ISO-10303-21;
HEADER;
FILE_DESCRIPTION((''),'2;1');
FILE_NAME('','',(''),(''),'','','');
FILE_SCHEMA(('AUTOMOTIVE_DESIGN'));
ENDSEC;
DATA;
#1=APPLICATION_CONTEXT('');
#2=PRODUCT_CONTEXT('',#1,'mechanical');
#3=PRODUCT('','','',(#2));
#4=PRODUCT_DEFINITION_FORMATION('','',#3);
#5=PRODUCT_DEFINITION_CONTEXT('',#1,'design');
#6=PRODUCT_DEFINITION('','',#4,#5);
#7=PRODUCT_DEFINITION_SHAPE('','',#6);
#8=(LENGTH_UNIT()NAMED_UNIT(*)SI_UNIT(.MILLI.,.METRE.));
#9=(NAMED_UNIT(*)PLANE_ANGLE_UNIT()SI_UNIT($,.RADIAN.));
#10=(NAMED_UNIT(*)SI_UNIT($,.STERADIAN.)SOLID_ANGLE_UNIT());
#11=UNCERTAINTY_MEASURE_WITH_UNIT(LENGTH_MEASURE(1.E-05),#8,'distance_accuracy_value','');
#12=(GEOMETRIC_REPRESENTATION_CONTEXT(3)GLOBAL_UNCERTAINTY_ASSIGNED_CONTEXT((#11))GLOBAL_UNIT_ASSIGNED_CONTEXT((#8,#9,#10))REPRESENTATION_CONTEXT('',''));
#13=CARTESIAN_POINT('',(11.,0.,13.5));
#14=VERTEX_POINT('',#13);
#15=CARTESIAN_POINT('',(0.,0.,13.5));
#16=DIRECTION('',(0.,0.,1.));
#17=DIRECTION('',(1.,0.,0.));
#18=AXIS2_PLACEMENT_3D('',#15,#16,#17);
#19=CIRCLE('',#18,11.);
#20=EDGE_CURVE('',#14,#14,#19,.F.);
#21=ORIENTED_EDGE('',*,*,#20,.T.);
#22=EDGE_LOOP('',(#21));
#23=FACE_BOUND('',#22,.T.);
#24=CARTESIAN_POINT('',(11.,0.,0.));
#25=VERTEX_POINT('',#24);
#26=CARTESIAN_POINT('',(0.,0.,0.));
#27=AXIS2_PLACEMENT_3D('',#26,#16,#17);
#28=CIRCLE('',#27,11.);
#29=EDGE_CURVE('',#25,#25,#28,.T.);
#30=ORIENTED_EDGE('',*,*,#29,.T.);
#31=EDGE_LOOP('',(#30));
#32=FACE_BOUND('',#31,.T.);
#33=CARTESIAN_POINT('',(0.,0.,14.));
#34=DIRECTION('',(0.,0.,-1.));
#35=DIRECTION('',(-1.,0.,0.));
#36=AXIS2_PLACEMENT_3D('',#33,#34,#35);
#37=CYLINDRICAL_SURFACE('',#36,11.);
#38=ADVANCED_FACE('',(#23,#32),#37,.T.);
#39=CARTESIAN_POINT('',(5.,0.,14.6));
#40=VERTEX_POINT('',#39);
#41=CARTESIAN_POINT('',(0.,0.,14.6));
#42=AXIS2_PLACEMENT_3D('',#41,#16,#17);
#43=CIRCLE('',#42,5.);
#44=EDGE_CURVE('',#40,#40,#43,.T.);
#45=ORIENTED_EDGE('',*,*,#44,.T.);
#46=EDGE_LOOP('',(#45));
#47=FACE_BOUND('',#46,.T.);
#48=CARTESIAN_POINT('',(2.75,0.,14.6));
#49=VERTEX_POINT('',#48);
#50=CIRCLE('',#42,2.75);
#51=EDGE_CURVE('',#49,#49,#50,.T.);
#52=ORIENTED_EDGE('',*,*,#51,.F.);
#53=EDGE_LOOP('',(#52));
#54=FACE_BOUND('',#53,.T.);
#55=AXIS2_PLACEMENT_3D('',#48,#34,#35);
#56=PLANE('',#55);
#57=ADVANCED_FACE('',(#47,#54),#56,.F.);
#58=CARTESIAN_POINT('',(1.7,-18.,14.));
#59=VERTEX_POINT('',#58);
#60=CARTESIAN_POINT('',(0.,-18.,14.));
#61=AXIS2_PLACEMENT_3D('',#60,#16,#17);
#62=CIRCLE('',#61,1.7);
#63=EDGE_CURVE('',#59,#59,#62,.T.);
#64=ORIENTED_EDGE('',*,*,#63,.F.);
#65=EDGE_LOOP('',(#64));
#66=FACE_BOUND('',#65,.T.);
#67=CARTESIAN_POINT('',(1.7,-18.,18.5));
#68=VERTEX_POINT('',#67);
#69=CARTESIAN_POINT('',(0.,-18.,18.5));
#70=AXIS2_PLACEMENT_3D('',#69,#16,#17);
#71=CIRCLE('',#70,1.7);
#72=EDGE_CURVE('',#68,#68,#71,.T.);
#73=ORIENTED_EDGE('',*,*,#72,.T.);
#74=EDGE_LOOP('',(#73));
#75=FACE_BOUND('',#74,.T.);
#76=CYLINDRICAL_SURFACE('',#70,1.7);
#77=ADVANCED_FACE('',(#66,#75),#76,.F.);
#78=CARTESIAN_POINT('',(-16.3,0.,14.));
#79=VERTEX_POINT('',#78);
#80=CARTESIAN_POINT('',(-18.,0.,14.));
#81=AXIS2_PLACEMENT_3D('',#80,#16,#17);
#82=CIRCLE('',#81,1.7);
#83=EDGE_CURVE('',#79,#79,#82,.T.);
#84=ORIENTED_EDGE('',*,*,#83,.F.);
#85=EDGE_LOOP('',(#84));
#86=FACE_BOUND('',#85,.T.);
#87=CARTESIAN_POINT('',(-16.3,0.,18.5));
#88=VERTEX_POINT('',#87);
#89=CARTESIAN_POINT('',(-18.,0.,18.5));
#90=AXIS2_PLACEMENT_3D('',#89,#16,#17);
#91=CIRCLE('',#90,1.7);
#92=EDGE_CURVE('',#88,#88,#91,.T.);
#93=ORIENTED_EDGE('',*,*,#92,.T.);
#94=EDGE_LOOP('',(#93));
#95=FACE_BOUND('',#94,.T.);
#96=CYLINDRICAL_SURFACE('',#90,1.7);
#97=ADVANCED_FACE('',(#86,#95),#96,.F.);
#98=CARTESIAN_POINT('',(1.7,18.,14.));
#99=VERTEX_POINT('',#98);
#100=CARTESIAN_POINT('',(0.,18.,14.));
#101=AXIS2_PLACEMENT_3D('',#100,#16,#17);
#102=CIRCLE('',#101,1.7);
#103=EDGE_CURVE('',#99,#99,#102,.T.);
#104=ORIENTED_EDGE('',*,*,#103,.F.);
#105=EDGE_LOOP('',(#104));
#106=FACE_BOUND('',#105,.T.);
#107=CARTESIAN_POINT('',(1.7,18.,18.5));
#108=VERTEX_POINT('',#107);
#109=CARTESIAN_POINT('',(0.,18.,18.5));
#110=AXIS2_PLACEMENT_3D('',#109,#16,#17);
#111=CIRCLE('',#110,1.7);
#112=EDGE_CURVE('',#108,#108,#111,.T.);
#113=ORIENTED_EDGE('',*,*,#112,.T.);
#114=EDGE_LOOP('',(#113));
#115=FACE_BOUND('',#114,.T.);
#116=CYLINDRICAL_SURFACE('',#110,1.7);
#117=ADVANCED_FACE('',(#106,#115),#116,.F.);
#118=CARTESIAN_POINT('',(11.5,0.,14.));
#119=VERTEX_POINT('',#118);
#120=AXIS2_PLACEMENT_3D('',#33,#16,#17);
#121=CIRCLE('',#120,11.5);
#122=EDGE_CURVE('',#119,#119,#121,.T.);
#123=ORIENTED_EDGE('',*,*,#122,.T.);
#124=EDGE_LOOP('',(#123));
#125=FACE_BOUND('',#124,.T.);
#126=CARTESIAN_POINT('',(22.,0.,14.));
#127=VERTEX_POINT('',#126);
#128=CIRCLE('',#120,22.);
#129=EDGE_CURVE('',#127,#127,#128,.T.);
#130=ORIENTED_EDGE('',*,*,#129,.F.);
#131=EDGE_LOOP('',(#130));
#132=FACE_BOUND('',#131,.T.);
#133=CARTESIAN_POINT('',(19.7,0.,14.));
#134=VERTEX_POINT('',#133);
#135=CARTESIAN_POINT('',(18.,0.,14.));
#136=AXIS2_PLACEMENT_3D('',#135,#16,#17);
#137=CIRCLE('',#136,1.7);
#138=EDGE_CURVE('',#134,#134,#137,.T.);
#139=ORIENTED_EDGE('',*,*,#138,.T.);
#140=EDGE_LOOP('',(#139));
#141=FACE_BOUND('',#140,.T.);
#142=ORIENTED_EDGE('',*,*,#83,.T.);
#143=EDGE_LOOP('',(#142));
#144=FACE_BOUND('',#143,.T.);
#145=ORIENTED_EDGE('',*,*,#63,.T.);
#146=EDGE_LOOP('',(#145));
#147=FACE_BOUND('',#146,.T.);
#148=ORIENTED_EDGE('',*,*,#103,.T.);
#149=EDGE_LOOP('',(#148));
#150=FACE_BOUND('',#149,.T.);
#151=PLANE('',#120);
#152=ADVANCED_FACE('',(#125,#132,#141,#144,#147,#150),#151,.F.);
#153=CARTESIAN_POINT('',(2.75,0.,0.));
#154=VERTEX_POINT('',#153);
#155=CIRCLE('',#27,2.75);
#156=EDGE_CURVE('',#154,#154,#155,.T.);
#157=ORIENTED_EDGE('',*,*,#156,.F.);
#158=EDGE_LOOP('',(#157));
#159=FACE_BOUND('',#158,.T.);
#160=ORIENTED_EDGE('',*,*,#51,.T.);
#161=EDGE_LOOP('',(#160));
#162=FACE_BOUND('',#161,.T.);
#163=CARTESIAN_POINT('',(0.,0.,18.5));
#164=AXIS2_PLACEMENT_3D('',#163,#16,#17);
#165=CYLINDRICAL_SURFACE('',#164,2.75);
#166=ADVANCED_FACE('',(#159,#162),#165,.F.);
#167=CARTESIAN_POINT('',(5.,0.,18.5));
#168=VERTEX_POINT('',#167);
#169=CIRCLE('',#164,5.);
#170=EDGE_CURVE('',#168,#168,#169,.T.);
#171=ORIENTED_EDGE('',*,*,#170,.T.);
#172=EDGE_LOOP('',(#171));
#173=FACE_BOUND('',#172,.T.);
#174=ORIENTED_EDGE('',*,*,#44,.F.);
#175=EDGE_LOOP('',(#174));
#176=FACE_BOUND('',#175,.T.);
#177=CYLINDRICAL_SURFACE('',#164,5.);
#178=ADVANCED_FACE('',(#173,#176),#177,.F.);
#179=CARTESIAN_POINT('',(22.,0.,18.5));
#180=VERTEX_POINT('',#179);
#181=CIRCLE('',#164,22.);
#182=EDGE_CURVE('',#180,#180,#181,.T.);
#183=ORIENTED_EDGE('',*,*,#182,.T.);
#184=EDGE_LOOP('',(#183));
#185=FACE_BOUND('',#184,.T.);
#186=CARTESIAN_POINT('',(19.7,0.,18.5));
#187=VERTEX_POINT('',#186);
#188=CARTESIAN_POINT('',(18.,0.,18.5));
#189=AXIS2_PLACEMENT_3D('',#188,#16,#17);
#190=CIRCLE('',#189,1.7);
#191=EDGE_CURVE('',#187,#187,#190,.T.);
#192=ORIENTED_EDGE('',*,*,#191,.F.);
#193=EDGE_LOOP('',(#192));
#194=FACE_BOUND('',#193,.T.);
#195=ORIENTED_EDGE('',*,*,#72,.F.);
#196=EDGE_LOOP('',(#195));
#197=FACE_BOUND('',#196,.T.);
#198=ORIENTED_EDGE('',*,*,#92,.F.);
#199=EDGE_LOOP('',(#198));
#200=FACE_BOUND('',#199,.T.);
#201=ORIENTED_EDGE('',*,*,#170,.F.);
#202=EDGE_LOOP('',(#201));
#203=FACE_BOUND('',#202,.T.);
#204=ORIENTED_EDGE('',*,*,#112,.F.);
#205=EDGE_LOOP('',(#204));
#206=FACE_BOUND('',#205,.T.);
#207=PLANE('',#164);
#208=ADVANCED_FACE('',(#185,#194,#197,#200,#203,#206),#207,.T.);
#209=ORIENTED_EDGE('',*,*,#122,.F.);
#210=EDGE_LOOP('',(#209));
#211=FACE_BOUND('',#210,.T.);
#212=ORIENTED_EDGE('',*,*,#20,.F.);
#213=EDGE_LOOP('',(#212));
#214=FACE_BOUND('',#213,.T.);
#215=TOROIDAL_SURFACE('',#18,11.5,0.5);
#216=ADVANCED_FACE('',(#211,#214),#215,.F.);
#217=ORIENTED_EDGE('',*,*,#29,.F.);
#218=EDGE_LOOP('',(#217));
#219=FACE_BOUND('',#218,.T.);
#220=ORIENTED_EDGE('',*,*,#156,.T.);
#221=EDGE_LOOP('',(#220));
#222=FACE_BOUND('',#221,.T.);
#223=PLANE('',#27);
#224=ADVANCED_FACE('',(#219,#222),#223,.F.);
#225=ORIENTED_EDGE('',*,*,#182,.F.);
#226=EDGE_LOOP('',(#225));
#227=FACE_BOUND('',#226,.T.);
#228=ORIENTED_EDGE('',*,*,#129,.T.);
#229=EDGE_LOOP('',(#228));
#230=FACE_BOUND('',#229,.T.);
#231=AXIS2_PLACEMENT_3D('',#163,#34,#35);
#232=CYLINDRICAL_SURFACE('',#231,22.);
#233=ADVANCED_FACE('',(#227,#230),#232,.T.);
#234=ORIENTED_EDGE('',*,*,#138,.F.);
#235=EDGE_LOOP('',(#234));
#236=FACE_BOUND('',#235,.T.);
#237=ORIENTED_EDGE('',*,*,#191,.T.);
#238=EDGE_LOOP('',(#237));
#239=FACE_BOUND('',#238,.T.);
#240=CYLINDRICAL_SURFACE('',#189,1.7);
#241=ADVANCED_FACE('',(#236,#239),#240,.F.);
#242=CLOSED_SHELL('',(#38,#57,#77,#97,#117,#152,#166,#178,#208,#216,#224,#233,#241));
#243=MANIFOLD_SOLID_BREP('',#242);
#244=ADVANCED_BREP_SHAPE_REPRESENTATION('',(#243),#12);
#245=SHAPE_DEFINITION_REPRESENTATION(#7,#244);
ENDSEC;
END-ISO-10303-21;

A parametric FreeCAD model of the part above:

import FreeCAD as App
import Part
import Sketcher

V = App.Vector


def edges_at(feature, points):
    """Names of the edges that pass closest to the given points."""
    edges = feature.Shape.Edges
    near = lambda p: min(range(len(edges)), key=lambda i: edges[i].distToShape(Part.Vertex(*p))[0])
    return sorted({f"Edge{near(p) + 1}" for p in points})

doc = App.newDocument("Part")
body = doc.addObject("PartDesign::Body", "Body")

# Sketch on XY plane
sketch1 = body.newObject("Sketcher::SketchObject", "Sketch")
sketch1.AttachmentSupport = (doc.getObject("XY_Plane"), [""])
sketch1.MapMode = "FlatFace"
sketch1.addGeometry(Part.Circle(V(0, 0, 0), V(0, 0, 1), 11), False)
sketch1.addConstraint(Sketcher.Constraint("Coincident", 0, 3, -1, 1))
sketch1.addConstraint(Sketcher.Constraint("Diameter", 0, 22.0))
pad1 = body.newObject("PartDesign::Pad", "Pad")
pad1.Profile = sketch1
pad1.Length = 14

# Sketch on XY plane
sketch2 = body.newObject("Sketcher::SketchObject", "Sketch001")
sketch2.AttachmentSupport = (doc.getObject("XY_Plane"), [""])
sketch2.MapMode = "FlatFace"
sketch2.AttachmentOffset = App.Placement(V(0, 0, 14), App.Rotation())
sketch2.addGeometry(Part.Circle(V(0, 0, 0), V(0, 0, 1), 22), False)
sketch2.addConstraint(Sketcher.Constraint("Coincident", 0, 3, -1, 1))
sketch2.addConstraint(Sketcher.Constraint("Diameter", 0, 44.0))
pad2 = body.newObject("PartDesign::Pad", "Pad001")
pad2.Profile = sketch2
pad2.Length = 4.5

# Sketch on XY plane
sketch3 = body.newObject("Sketcher::SketchObject", "Sketch002")
sketch3.AttachmentSupport = (doc.getObject("XY_Plane"), [""])
sketch3.MapMode = "FlatFace"
sketch3.AttachmentOffset = App.Placement(V(0, 0, 18.5), App.Rotation())
sketch3.addGeometry(Part.Circle(V(-18, 0, 0), V(0, 0, 1), 1.7), False)
sketch3.addGeometry(Part.Circle(V(0, 18, 0), V(0, 0, 1), 1.7), False)
sketch3.addGeometry(Part.Circle(V(18, 0, 0), V(0, 0, 1), 1.7), False)
sketch3.addGeometry(Part.Circle(V(0, -18, 0), V(0, 0, 1), 1.7), False)
sketch3.addConstraint(Sketcher.Constraint("Equal", 0, 1))
sketch3.addConstraint(Sketcher.Constraint("Equal", 1, 2))
sketch3.addConstraint(Sketcher.Constraint("Equal", 2, 3))
sketch3.addConstraint(Sketcher.Constraint("Symmetric", 0, 3, 2, 3, -1, 1))
sketch3.addConstraint(Sketcher.Constraint("Symmetric", 1, 3, 3, 3, -1, 1))
sketch3.addConstraint(Sketcher.Constraint("PointOnObject", 0, 3, -1))
sketch3.addConstraint(Sketcher.Constraint("PointOnObject", 1, 3, -2))
sketch3.addConstraint(Sketcher.Constraint("Diameter", 0, 3.4))
sketch3.addConstraint(Sketcher.Constraint("DistanceX", 0, 3, -1, 1, 18.0))
sketch3.addConstraint(Sketcher.Constraint("DistanceY", -1, 1, 1, 3, 18.0))
doc.recompute()
hole = body.newObject("PartDesign::Hole", "Hole")
hole.Profile = sketch3
hole.ThreadType = "None"
hole.Diameter = 3.4
hole.DepthType = "ThroughAll"

# Sketch on XY plane
sketch4 = body.newObject("Sketcher::SketchObject", "Sketch003")
sketch4.AttachmentSupport = (doc.getObject("XY_Plane"), [""])
sketch4.MapMode = "FlatFace"
sketch4.AttachmentOffset = App.Placement(V(0, 0, 18.5), App.Rotation())
sketch4.addGeometry(Part.Circle(V(0, 0, 0), V(0, 0, 1), 2.8), False)
sketch4.addConstraint(Sketcher.Constraint("Coincident", 0, 3, -1, 1))
sketch4.addConstraint(Sketcher.Constraint("Diameter", 0, 5.5))
doc.recompute()
hole2 = body.newObject("PartDesign::Hole", "Hole001")
hole2.Profile = sketch4
hole2.ThreadType = "None"
hole2.Diameter = 5.5
hole2.DepthType = "ThroughAll"
hole2.HoleCutType = "Counterbore"
hole2.HoleCutDiameter = 10
hole2.HoleCutDepth = 3.9
doc.recompute()

fillet = body.newObject("PartDesign::Fillet", "Fillet")
fillet.Base = (hole2, edges_at(hole2, [(-11, 0, 14)]))
fillet.Radius = 0.5

doc.recompute()
